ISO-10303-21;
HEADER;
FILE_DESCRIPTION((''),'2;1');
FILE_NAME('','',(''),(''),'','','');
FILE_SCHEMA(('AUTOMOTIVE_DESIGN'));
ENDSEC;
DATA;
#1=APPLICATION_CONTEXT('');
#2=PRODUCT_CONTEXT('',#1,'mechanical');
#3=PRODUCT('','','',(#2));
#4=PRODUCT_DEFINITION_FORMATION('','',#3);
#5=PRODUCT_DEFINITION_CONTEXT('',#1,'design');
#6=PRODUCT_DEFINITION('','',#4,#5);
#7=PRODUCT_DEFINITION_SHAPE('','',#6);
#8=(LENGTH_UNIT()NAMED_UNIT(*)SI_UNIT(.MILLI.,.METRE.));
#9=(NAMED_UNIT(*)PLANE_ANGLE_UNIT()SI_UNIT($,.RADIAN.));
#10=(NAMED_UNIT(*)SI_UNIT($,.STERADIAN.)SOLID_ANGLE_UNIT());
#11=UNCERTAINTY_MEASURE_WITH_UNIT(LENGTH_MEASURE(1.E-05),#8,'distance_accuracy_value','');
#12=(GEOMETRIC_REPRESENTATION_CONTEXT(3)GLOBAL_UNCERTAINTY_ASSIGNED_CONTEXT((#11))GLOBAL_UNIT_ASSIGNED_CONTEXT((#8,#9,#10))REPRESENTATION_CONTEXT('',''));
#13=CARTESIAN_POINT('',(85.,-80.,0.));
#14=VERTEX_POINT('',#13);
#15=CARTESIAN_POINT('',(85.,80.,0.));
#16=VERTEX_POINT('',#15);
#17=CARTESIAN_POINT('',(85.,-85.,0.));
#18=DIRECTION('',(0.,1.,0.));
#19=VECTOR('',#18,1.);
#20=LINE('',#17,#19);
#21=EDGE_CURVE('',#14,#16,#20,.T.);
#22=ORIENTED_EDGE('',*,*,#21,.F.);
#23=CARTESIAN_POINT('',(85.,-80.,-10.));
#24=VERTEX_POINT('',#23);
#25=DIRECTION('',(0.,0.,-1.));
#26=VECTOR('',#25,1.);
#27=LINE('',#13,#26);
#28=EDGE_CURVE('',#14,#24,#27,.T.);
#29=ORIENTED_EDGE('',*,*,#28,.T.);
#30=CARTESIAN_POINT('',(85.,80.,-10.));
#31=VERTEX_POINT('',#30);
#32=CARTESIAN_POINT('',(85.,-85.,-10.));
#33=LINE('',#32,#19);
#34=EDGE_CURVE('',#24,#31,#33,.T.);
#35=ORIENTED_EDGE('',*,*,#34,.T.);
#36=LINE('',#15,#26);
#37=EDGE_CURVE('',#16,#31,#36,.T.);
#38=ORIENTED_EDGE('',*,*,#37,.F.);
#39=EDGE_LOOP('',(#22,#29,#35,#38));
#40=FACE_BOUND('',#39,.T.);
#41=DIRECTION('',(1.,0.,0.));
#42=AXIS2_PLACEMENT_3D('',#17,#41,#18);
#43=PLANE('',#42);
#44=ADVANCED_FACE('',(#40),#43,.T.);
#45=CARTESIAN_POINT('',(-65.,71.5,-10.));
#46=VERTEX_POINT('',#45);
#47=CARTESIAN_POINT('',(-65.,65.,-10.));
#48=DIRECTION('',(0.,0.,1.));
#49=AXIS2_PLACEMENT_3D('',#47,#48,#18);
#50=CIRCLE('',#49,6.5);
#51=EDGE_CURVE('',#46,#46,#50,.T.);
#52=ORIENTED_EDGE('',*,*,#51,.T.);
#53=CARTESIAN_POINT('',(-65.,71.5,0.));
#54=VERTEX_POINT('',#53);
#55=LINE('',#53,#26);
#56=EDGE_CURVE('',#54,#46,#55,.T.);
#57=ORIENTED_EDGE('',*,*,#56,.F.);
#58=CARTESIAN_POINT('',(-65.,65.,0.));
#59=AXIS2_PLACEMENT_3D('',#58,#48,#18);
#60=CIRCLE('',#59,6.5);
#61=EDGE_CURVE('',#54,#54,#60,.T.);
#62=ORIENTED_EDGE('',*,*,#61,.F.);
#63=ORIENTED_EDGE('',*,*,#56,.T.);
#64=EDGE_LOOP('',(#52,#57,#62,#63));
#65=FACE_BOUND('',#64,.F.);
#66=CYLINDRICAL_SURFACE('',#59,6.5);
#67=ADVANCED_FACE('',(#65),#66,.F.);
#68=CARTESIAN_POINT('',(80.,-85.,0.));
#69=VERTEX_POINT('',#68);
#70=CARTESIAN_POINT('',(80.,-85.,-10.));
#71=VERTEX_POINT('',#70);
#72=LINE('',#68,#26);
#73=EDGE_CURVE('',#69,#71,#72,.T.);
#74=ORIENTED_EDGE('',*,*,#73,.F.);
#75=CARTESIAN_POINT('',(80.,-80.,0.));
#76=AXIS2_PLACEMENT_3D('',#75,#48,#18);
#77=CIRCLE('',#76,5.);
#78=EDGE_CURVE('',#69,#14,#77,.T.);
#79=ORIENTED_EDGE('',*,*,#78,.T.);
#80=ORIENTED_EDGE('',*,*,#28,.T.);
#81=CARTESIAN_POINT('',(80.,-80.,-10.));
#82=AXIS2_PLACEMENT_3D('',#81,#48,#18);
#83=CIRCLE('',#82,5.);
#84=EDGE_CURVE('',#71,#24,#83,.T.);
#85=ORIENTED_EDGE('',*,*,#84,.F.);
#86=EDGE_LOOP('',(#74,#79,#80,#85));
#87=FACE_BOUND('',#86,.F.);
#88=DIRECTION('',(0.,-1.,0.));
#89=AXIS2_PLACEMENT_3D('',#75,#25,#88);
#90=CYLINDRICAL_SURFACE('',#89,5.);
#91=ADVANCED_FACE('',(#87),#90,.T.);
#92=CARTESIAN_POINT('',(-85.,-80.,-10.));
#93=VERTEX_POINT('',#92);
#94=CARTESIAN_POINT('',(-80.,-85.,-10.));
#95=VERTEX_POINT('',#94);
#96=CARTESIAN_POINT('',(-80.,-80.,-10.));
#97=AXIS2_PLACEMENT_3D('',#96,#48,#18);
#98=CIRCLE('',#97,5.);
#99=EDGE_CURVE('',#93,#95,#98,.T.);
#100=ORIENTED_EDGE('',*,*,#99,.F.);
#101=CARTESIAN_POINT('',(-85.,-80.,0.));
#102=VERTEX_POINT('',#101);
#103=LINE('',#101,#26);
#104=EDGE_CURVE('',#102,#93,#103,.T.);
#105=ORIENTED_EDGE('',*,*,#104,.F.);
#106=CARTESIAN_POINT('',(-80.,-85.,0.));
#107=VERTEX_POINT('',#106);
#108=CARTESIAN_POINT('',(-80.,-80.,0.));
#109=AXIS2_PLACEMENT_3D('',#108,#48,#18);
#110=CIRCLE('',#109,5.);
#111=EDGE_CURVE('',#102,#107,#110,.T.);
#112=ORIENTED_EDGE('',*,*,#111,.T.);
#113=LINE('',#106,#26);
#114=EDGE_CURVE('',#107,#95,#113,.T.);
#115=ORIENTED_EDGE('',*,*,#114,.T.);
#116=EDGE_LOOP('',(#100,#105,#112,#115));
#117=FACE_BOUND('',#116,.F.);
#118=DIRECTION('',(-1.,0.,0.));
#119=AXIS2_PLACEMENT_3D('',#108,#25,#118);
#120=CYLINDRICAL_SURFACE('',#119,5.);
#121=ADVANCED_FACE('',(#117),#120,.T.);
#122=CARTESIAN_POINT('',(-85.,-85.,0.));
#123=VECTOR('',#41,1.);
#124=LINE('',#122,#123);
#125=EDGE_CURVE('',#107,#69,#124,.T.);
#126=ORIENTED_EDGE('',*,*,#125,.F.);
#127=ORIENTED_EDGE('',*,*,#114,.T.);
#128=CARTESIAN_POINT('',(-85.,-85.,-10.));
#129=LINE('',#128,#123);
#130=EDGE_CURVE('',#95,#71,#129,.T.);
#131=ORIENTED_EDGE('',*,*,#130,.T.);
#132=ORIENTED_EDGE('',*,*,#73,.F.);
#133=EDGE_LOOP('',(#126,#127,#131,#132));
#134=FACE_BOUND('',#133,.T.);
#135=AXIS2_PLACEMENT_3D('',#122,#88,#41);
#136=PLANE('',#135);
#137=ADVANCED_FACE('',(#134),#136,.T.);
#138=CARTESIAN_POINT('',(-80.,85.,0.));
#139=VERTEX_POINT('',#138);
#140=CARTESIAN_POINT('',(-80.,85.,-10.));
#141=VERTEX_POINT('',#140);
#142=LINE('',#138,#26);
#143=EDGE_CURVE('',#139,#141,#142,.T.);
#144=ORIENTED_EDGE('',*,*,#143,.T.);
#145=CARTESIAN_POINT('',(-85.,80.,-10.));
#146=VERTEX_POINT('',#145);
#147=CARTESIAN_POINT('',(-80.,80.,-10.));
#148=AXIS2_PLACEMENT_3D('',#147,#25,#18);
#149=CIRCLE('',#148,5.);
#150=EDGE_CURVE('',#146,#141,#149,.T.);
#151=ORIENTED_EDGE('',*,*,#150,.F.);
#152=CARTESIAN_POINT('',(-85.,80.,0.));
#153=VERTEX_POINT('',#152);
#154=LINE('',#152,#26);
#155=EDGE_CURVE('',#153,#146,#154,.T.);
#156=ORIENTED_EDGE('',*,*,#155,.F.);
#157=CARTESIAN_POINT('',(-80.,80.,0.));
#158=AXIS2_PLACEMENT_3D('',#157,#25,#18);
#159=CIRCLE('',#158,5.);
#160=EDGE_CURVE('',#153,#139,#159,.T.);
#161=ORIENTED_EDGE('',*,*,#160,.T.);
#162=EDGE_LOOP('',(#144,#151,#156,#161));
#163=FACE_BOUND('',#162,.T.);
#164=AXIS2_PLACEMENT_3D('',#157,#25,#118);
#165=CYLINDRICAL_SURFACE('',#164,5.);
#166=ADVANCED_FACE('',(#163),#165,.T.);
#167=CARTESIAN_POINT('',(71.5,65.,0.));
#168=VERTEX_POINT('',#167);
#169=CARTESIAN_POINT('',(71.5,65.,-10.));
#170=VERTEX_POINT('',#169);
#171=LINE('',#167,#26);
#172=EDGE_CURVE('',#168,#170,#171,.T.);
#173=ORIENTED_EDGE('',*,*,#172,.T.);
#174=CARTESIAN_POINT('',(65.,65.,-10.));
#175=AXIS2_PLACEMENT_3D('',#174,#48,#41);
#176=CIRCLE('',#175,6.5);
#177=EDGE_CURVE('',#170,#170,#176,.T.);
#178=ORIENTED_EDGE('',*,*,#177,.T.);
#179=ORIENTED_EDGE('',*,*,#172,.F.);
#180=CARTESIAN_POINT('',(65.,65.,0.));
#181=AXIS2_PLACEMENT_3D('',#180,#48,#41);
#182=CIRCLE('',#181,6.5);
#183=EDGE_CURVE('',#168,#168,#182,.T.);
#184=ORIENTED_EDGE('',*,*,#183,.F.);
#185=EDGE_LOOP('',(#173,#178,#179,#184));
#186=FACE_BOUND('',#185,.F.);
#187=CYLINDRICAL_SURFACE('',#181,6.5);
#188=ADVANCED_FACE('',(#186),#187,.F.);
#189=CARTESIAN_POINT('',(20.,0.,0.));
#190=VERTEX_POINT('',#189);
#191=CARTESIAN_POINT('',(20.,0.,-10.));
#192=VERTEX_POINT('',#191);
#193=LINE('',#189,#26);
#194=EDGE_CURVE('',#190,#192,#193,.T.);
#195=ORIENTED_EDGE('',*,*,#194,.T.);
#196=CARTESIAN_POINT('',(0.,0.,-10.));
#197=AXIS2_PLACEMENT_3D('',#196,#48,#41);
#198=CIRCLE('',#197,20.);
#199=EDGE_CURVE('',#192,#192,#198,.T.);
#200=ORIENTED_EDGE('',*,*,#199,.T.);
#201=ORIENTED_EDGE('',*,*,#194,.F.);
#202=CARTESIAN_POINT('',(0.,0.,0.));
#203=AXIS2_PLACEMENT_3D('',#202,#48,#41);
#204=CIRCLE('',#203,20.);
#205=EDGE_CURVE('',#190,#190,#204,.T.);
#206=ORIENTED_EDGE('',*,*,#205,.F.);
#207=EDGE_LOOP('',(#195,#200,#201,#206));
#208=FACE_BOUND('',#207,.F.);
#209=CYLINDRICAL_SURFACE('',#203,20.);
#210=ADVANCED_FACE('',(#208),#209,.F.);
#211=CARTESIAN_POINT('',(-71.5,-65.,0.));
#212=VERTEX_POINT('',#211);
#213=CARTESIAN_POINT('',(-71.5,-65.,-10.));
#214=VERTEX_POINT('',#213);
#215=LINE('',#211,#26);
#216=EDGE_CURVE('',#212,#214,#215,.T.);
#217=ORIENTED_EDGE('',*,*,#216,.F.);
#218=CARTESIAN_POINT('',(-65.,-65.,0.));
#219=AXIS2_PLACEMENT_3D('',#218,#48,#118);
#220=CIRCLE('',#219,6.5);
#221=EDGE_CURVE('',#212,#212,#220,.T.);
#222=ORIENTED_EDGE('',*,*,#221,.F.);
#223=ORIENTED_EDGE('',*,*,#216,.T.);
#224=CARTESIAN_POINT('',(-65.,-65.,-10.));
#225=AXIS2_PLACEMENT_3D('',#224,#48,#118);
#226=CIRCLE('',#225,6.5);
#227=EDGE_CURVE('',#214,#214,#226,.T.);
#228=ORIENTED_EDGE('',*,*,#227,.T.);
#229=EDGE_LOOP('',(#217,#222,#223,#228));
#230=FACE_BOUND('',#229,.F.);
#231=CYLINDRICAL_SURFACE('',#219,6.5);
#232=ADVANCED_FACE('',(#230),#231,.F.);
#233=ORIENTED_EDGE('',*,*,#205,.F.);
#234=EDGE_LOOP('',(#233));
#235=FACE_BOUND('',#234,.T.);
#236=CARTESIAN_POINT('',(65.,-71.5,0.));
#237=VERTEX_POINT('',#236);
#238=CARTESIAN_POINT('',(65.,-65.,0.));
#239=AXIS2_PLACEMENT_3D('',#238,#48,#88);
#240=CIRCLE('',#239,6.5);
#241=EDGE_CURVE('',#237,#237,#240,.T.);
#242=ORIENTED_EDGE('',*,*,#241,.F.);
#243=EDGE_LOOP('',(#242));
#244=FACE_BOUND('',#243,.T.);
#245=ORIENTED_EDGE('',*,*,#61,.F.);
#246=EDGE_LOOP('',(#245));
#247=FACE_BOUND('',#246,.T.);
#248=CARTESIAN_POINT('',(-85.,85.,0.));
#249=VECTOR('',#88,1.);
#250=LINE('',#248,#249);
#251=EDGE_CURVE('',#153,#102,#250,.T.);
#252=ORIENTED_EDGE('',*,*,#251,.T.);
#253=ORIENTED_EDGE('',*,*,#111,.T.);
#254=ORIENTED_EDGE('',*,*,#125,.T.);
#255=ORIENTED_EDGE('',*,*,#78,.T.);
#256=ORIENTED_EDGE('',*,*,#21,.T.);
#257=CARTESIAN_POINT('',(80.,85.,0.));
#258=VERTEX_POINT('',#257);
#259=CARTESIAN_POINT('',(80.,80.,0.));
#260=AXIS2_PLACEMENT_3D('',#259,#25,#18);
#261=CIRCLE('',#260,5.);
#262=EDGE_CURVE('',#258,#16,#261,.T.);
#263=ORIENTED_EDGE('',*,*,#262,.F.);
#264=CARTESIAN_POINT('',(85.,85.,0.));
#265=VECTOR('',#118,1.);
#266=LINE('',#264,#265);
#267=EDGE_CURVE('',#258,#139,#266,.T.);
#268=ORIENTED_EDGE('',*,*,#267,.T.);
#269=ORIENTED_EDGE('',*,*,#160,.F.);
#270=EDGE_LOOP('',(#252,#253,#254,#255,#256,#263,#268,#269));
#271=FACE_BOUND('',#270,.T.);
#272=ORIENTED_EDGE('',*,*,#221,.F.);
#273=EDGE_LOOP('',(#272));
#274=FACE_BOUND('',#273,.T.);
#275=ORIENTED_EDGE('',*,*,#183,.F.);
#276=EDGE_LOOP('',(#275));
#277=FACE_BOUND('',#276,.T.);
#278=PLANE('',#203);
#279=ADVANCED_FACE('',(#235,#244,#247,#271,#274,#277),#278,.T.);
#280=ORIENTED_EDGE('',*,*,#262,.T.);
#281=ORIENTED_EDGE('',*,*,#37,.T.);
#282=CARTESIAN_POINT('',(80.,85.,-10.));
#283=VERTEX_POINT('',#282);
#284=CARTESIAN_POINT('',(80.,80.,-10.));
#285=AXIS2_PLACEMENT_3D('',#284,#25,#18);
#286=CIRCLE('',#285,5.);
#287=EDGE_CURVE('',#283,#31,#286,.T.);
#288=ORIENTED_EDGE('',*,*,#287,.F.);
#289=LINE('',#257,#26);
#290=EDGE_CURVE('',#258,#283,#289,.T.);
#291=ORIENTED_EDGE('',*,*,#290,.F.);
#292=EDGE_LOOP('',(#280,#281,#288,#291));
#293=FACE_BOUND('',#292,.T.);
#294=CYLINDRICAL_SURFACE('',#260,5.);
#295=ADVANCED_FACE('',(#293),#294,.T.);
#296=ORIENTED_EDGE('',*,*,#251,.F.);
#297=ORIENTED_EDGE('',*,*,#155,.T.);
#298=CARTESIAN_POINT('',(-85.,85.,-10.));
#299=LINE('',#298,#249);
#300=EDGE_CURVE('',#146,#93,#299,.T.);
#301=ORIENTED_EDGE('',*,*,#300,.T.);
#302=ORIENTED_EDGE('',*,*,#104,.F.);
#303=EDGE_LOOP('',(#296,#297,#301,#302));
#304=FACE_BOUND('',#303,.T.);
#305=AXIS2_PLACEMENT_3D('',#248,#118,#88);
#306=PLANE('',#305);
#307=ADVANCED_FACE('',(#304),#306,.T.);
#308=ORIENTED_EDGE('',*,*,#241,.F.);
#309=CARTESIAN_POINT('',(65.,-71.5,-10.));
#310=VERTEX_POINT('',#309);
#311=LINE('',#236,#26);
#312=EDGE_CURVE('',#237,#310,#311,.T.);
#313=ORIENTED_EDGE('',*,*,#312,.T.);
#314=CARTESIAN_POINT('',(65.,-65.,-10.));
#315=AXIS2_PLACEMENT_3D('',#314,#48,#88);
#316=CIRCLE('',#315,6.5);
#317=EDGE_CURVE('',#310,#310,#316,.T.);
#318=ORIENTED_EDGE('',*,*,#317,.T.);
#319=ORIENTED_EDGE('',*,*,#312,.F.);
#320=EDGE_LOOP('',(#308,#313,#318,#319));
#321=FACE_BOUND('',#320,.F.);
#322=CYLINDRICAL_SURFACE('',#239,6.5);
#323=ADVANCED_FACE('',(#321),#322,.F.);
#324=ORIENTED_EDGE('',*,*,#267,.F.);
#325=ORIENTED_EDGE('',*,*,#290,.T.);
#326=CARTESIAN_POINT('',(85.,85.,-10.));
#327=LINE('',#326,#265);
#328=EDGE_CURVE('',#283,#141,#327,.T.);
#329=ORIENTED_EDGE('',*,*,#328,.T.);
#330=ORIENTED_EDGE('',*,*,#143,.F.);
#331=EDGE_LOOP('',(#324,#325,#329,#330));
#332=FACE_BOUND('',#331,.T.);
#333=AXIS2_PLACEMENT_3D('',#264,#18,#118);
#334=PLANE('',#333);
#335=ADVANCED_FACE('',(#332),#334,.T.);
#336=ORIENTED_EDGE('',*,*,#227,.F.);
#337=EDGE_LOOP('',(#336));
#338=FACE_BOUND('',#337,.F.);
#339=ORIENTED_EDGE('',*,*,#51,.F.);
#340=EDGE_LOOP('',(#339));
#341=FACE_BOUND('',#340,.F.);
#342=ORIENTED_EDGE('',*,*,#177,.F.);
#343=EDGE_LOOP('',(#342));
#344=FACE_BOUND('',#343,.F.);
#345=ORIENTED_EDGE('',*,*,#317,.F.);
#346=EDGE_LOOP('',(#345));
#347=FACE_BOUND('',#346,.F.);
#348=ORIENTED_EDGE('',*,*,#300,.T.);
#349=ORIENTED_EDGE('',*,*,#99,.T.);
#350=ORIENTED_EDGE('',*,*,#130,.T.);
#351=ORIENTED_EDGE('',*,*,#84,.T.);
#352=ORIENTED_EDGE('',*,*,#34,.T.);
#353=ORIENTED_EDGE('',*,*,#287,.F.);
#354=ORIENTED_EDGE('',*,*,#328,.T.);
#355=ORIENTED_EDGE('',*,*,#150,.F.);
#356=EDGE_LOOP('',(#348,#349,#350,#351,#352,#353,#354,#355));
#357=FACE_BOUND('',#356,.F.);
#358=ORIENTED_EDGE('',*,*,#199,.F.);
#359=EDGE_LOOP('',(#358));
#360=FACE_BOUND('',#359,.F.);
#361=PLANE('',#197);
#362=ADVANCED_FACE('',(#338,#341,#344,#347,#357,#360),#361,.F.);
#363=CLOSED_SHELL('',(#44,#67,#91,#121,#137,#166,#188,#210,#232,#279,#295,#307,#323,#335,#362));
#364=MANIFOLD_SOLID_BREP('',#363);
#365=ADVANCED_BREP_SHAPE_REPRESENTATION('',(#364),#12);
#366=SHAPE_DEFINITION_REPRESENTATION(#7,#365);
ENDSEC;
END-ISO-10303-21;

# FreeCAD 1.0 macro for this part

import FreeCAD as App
import Part
import Sketcher

V = App.Vector


def edges_at(feature, points):
    """Names of the edges that pass closest to the given points."""
    edges = feature.Shape.Edges
    near = lambda p: min(range(len(edges)), key=lambda i: edges[i].distToShape(Part.Vertex(*p))[0])
    return sorted({f"Edge{near(p) + 1}" for p in points})


def add_polygon(sketch, points):
    """Adds a closed chain of lines whose ends are joined by coincident constraints."""
    first, n = sketch.GeometryCount, len(points)
    for a, b in zip(points, points[1:] + points[:1]):
        sketch.addGeometry(Part.LineSegment(App.Vector(*a, 0), App.Vector(*b, 0)), False)
    for i in range(n):
        sketch.addConstraint(Sketcher.Constraint("Coincident", first + i, 2, first + (i + 1) % n, 1))

doc = App.newDocument("Part")
body = doc.addObject("PartDesign::Body", "Body")

# Sketch on XY plane
sketch1 = body.newObject("Sketcher::SketchObject", "Sketch")
sketch1.AttachmentSupport = (doc.getObject("XY_Plane"), [""])
sketch1.MapMode = "FlatFace"
add_polygon(sketch1, [(-85, 85), (-85, -85), (85, -85), (85, 85)])  # lines 0-3
sketch1.addGeometry(Part.Circle(V(0, 0, 0), V(0, 0, 1), 20), False)  # 4
sketch1.addConstraint([
    Sketcher.Constraint("Vertical", 0),
    Sketcher.Constraint("Horizontal", 1),
    Sketcher.Constraint("Vertical", 2),
    Sketcher.Constraint("Horizontal", 3),
    Sketcher.Constraint("Coincident", 4, 3, -1, 1),
    Sketcher.Constraint("Symmetric", 0, 2, 2, 2, -1, 1),
    Sketcher.Constraint("Equal", 3, 0),
    Sketcher.Constraint("Diameter", 4, 40.0),
    Sketcher.Constraint("DistanceX", 1, 1, 1, 2, 170.0),
])
pad1 = body.newObject("PartDesign::Pad", "Pad")
pad1.Profile = sketch1
pad1.Length = 10
pad1.Reversed = True

# Sketch on XY plane
sketch2 = body.newObject("Sketcher::SketchObject", "Sketch001")
sketch2.AttachmentSupport = (doc.getObject("XY_Plane"), [""])
sketch2.MapMode = "FlatFace"
sketch2.addGeometry(Part.Circle(V(65, 65, 0), V(0, 0, 1), 6.5), False)
sketch2.addConstraint([
    Sketcher.Constraint("Diameter", 0, 13.0),
    Sketcher.Constraint("DistanceX", -1, 1, 0, 3, 65.0),
    Sketcher.Constraint("DistanceY", -1, 1, 0, 3, 65.0),
])
pocket1 = body.newObject("PartDesign::Pocket", "Pocket")
pocket1.Profile = sketch2
pocket1.Type = "ThroughAll"
doc.recompute()

polarpattern = body.newObject("PartDesign::PolarPattern", "PolarPattern")
polarpattern.Originals = [pocket1]
polarpattern.Axis = (doc.getObject("Z_Axis"), [""])
polarpattern.Angle = 360
polarpattern.Occurrences = 4
body.Tip = polarpattern
doc.recompute()

fillet = body.newObject("PartDesign::Fillet", "Fillet")
fillet.Base = (polarpattern, edges_at(polarpattern, [
    (85, -85, -5),
    (-85, -85, -5),
    (-85, 85, -5),
    (85, 85, -5),
]))
fillet.Radius = 5

doc.recompute()
